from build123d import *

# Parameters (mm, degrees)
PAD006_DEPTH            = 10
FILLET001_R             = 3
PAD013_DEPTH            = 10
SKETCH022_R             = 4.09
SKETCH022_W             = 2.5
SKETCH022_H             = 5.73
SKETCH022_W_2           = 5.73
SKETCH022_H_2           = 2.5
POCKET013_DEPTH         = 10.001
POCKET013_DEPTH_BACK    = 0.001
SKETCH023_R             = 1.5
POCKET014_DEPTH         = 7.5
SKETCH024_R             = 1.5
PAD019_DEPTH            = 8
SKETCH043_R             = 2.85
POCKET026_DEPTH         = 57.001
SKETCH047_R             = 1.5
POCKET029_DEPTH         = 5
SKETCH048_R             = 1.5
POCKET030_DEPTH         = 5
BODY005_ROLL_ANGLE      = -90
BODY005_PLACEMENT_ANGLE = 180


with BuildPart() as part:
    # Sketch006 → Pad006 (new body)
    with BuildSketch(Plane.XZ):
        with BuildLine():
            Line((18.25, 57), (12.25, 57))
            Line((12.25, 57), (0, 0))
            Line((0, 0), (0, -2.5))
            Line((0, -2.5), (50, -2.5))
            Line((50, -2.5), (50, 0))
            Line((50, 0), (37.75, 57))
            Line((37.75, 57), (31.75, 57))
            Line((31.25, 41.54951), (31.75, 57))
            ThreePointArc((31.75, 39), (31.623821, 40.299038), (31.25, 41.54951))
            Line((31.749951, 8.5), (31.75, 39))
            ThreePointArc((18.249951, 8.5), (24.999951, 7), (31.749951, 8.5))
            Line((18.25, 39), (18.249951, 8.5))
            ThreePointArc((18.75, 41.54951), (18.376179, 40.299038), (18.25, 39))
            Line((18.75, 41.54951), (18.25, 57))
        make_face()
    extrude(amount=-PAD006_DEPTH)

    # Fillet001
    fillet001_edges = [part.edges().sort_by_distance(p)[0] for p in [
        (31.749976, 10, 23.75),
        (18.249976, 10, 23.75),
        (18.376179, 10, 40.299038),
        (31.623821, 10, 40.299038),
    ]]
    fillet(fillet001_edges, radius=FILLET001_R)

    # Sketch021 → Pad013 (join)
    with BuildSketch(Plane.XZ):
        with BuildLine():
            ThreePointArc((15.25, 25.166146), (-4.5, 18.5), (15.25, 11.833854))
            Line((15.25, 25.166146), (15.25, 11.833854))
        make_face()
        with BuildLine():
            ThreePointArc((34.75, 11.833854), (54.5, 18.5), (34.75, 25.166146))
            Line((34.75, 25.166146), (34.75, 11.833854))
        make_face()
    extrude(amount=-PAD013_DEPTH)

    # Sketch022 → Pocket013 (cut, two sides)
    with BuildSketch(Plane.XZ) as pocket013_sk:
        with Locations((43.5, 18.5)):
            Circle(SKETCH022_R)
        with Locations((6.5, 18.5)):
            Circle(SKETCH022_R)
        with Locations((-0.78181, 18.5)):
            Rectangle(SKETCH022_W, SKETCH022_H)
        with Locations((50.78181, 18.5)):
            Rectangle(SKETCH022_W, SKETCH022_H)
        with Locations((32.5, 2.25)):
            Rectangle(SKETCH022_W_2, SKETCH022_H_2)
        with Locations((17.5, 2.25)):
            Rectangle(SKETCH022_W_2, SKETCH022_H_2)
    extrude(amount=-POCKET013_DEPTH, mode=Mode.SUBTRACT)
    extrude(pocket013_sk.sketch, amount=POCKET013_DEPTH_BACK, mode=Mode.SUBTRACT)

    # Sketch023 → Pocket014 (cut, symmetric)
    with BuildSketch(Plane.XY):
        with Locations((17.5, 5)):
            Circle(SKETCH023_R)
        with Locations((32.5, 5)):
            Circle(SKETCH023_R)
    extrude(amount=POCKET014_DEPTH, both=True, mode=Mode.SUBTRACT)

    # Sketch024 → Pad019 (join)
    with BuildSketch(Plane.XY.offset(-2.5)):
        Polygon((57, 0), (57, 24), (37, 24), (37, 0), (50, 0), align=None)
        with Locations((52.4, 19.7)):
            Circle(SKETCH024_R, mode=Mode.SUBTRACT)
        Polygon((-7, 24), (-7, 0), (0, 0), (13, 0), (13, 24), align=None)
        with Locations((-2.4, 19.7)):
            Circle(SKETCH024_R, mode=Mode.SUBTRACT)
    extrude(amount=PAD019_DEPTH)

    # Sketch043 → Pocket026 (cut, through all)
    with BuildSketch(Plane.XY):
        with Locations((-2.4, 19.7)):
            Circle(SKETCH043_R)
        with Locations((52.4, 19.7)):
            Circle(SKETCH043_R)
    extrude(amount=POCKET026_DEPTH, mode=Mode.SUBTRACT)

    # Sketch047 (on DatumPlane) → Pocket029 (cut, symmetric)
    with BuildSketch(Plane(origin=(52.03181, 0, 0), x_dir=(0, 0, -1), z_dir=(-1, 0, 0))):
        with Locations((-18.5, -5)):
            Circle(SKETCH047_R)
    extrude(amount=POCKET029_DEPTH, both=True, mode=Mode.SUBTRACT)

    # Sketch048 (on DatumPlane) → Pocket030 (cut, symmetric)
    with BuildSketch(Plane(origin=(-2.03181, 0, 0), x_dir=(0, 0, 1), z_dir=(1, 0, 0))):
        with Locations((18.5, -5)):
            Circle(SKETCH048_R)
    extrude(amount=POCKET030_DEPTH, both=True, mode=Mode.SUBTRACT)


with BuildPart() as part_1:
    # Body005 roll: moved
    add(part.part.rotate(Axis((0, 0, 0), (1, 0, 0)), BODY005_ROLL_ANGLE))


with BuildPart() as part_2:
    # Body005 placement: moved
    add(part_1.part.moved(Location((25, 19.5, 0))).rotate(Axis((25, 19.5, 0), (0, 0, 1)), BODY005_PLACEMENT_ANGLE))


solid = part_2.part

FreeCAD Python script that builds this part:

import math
import FreeCAD as App
import Part
import Sketcher


def edges_at(feature, points):
    """Names of the edges that pass closest to the given points."""
    edges = feature.Shape.Edges
    near = lambda p: min(range(len(edges)), key=lambda i: edges[i].distToShape(Part.Vertex(*p))[0])
    return sorted({f"Edge{near(p) + 1}" for p in points})


def add_polygon(sketch, points):
    """Adds a closed chain of lines whose ends are joined by coincident constraints."""
    first, n = sketch.GeometryCount, len(points)
    for a, b in zip(points, points[1:] + points[:1]):
        sketch.addGeometry(Part.LineSegment(App.Vector(*a, 0), App.Vector(*b, 0)), False)
    for i in range(n):
        sketch.addConstraint(Sketcher.Constraint("Coincident", first + i, 2, first + (i + 1) % n, 1))

doc = App.newDocument("Part")
body = doc.addObject("PartDesign::Body", "Body")

# Sketch on XZ plane
sketch1 = body.newObject("Sketcher::SketchObject", "Sketch")
sketch1.AttachmentSupport = (doc.getObject("XZ_Plane"), [""])
sketch1.MapMode = "FlatFace"
sketch1.addGeometry([
    Part.LineSegment(App.Vector(18.25, 57, 0), App.Vector(12.25, 57, 0)),  # 0
    Part.LineSegment(App.Vector(12.25, 57, 0), App.Vector(0, 0, 0)),  # 1
    Part.LineSegment(App.Vector(0, 0, 0), App.Vector(0, -2.5, 0)),  # 2
    Part.LineSegment(App.Vector(0, -2.5, 0), App.Vector(50, -2.5, 0)),  # 3
    Part.LineSegment(App.Vector(50, -2.5, 0), App.Vector(50, 0, 0)),  # 4
    Part.LineSegment(App.Vector(50, 0, 0), App.Vector(37.75, 57, 0)),  # 5
    Part.LineSegment(App.Vector(37.75, 57, 0), App.Vector(31.75, 57, 0)),  # 6
    Part.LineSegment(App.Vector(31.75, 57, 0), App.Vector(31.25, 41.54951, 0)),  # 7
    Part.ArcOfCircle(Part.Circle(App.Vector(25.000015, 39.000003, 0), App.Vector(0, 0, 1), 6.749985), math.radians(-0.000026), math.radians(22.191631)),  # 8
    Part.LineSegment(App.Vector(31.75, 39, 0), App.Vector(31.749951, 8.5, 0)),  # 9
    Part.ArcOfCircle(Part.Circle(App.Vector(24.999951, 22.9375, 0), App.Vector(0, 0, 1), 15.9375), math.radians(-115.057615), math.radians(-64.942385)),  # 10
    Part.LineSegment(App.Vector(18.249951, 8.5, 0), App.Vector(18.25, 39, 0)),  # 11
    Part.ArcOfCircle(Part.Circle(App.Vector(24.999985, 39.000003, 0), App.Vector(0, 0, 1), 6.749985), math.radians(157.808369), math.radians(180.000026)),  # 12
    Part.LineSegment(App.Vector(18.75, 41.54951, 0), App.Vector(18.25, 57, 0)),  # 13
], False)
sketch1.addConstraint([
    Sketcher.Constraint("Coincident", 0, 2, 1, 1),
    Sketcher.Constraint("Coincident", 1, 2, 2, 1),
    Sketcher.Constraint("Coincident", 2, 2, 3, 1),
    Sketcher.Constraint("Coincident", 3, 2, 4, 1),
    Sketcher.Constraint("Coincident", 4, 2, 5, 1),
    Sketcher.Constraint("Coincident", 5, 2, 6, 1),
    Sketcher.Constraint("Coincident", 6, 2, 7, 1),
    Sketcher.Constraint("Coincident", 7, 2, 8, 2),
    Sketcher.Constraint("Tangent", 8, 1, 9, 1),
    Sketcher.Constraint("Coincident", 9, 2, 10, 2),
    Sketcher.Constraint("Coincident", 10, 1, 11, 1),
    Sketcher.Constraint("Coincident", 11, 2, 12, 2),
    Sketcher.Constraint("Coincident", 12, 1, 13, 1),
    Sketcher.Constraint("Coincident", 13, 2, 0, 1),
    Sketcher.Constraint("Horizontal", 0),
    Sketcher.Constraint("Vertical", 2),
    Sketcher.Constraint("Horizontal", 3),
    Sketcher.Constraint("Vertical", 4),
    Sketcher.Constraint("Horizontal", 6),
    Sketcher.Constraint("Coincident", 1, 2, -1, 1),
    Sketcher.Constraint("Equal", 8, 12),
    Sketcher.Constraint("PointOnObject", 4, 2, -1),
    Sketcher.Constraint("Parallel", 9, 11),
    Sketcher.Constraint("Horizontal", 8, 3, 12, 3),
    Sketcher.Constraint("Horizontal", 0, 2, 5, 2),
    Sketcher.Constraint("Horizontal", 9, 2, 10, 1),
    Sketcher.Constraint("Horizontal", 8, 1, 11, 2),
    Sketcher.Constraint("Horizontal", 7, 2, 12, 1),
    Sketcher.Constraint("Vertical", 6, 2, 8, 1),
    Sketcher.Constraint("Vertical", 11, 2, 13, 2),
    Sketcher.Constraint("Equal", 0, 6),
    Sketcher.Constraint("Equal", 1, 5),
    Sketcher.Constraint("DistanceX", 0, 2, 0, 1, 6.0),
    Sketcher.Constraint("DistanceX", 3, 1, 3, 2, 50.0),
    Sketcher.Constraint("DistanceY", 2, 2, 2, 1, 2.5),
    Sketcher.Constraint("DistanceY", -1, 1, 0, 2, 57.0),
    Sketcher.Constraint("DistanceY", -1, 1, 8, 1, 39.0),
    Sketcher.Constraint("DistanceY", 3, 2, 9, 2, 11.0),
    Sketcher.Constraint("DistanceX", 11, 2, 7, 2, 13.0),
    Sketcher.Constraint("Radius", 10, 15.9375),
    Sketcher.Constraint("DistanceX", 0, 2, 5, 2, 25.5),
    Sketcher.Constraint("Radius", 8, 6.749985),
    Sketcher.Constraint("Distance", 7, 15.458578),
])
pad1 = body.newObject("PartDesign::Pad", "Pad")
pad1.Profile = sketch1
pad1.Length = 10
pad1.Reversed = True
doc.recompute()

fillet = body.newObject("PartDesign::Fillet", "Fillet")
fillet.Base = (pad1, edges_at(pad1, [
    (31.75, 10, 23.75),
    (18.25, 10, 23.75),
    (18.376, 10, 40.299),
    (31.624, 10, 40.299),
]))
fillet.Radius = 3

# Sketch on XZ plane
sketch2 = body.newObject("Sketcher::SketchObject", "Sketch001")
sketch2.AttachmentSupport = (doc.getObject("XZ_Plane"), [""])
sketch2.MapMode = "FlatFace"
sketch2.addGeometry([
    Part.ArcOfCircle(Part.Circle(App.Vector(7, 18, 0), App.Vector(0, 0, 1), 11), math.radians(37), math.radians(323)),
    Part.LineSegment(App.Vector(15, 12, 0), App.Vector(15, 25, 0)),
    Part.ArcOfCircle(Part.Circle(App.Vector(43, 18, 0), App.Vector(0, 0, 1), 11), math.radians(-143), math.radians(143)),
    Part.LineSegment(App.Vector(35, 25, 0), App.Vector(35, 12, 0)),
], False)
sketch2.addConstraint([
    Sketcher.Constraint("Coincident", 0, 1, 1, 2),
    Sketcher.Constraint("Coincident", 1, 1, 0, 2),
    Sketcher.Constraint("Coincident", 2, 1, 3, 2),
    Sketcher.Constraint("Coincident", 3, 1, 2, 2),
    Sketcher.Constraint("Vertical", 1),
    Sketcher.Constraint("Vertical", 3),
    Sketcher.Constraint("Equal", 0, 2),
    Sketcher.Constraint("Horizontal", 0, 3, 2, 3),
    Sketcher.Constraint("Horizontal", 1, 1, 2, 1),
    Sketcher.Constraint("Radius", 0, 11.0),
    Sketcher.Constraint("DistanceX", 0, 3, 2, 3, 37.0),
    Sketcher.Constraint("DistanceX", -1, 1, 0, 3, 6.5),
    Sketcher.Constraint("DistanceY", -1, 1, 0, 3, 18.5),
    Sketcher.Constraint("DistanceX", 1, 1, 2, 1, 19.5),
])
pad2 = body.newObject("PartDesign::Pad", "Pad001")
pad2.Profile = sketch2
pad2.Length = 10
pad2.Reversed = True

# Sketch on XZ plane
sketch3 = body.newObject("Sketcher::SketchObject", "Sketch002")
sketch3.AttachmentSupport = (doc.getObject("XZ_Plane"), [""])
sketch3.MapMode = "FlatFace"
sketch3.addGeometry(Part.Circle(App.Vector(43.5, 18.5, 0), App.Vector(0, 0, 1), 4.1), False)  # 0
sketch3.addGeometry(Part.Circle(App.Vector(6.5, 18.5, 0), App.Vector(0, 0, 1), 4.1), False)  # 1
add_polygon(sketch3, [(-2, 21.4), (-2, 15.6), (0.5, 15.6), (0.5, 21.4)])  # lines 2-5
add_polygon(sketch3, [(49.5, 21.4), (49.5, 15.6), (52, 15.6), (52, 21.4)])  # lines 6-9
add_polygon(sketch3, [(29.6, 3.5), (29.6, 1), (35.4, 1), (35.4, 3.5)])  # lines 10-13
add_polygon(sketch3, [(14.6, 3.5), (14.6, 1), (20.4, 1), (20.4, 3.5)])  # lines 14-17
sketch3.addConstraint([
    Sketcher.Constraint("Vertical", 2),
    Sketcher.Constraint("Horizontal", 3),
    Sketcher.Constraint("Vertical", 4),
    Sketcher.Constraint("Horizontal", 5),
    Sketcher.Constraint("Vertical", 6),
    Sketcher.Constraint("Horizontal", 7),
    Sketcher.Constraint("Vertical", 8),
    Sketcher.Constraint("Horizontal", 9),
    Sketcher.Constraint("Vertical", 10),
    Sketcher.Constraint("Horizontal", 11),
    Sketcher.Constraint("Vertical", 12),
    Sketcher.Constraint("Horizontal", 13),
    Sketcher.Constraint("Vertical", 14),
    Sketcher.Constraint("Horizontal", 15),
    Sketcher.Constraint("Vertical", 16),
    Sketcher.Constraint("Horizontal", 17),
    Sketcher.Constraint("Equal", 0, 1),
    Sketcher.Constraint("Horizontal", 0, 3, 1, 3),
    Sketcher.Constraint("Horizontal", 3, 2, 6, 2),
    Sketcher.Constraint("Horizontal", 5, 2, 8, 2),
    Sketcher.Constraint("Horizontal", 11, 2, 14, 2),
    Sketcher.Constraint("Horizontal", 13, 2, 16, 2),
    Sketcher.Constraint("Equal", 5, 7),
    Sketcher.Constraint("Equal", 13, 15),
    Sketcher.Constraint("Equal", 17, 2),
    Sketcher.Constraint("Equal", 9, 10),
    Sketcher.Constraint("Diameter", 0, 8.18),
    Sketcher.Constraint("DistanceX", 3, 1, 3, 2, 2.5),
    Sketcher.Constraint("DistanceY", -1, 1, 10, 2, 1.0),
    Sketcher.Constraint("DistanceX", 1, 3, 0, 3, 37.0),
    Sketcher.Constraint("DistanceY", 12, 2, 0, 3, 15.0),
    Sketcher.Constraint("DistanceX", 14, 2, 10, 2, 15.0),
    Sketcher.Constraint("DistanceX", 11, 1, 11, 2, 5.73),
    Sketcher.Constraint("DistanceX", -1, 1, 0, 3, 43.5),
    Sketcher.Constraint("DistanceY", -1, 1, 2, 2, 15.635),
    Sketcher.Constraint("DistanceX", -1, 1, 10, 2, 29.635),
    Sketcher.Constraint("DistanceX", 2, 2, -1, 1, 2.03181),
    Sketcher.Constraint("DistanceX", -1, 1, 6, 2, 49.53181),
])
pocket1 = body.newObject("PartDesign::Pocket", "Pocket")
pocket1.Profile = sketch3
pocket1.Type = "ThroughAll"
pocket1.Midplane = True

# Sketch on XY plane
sketch4 = body.newObject("Sketcher::SketchObject", "Sketch003")
sketch4.AttachmentSupport = (doc.getObject("XY_Plane"), [""])
sketch4.MapMode = "FlatFace"
sketch4.addGeometry([
    Part.Circle(App.Vector(17.5, 5, 0), App.Vector(0, 0, 1), 1.5),
    Part.Circle(App.Vector(32.5, 5, 0), App.Vector(0, 0, 1), 1.5),
], False)
sketch4.addConstraint([
    Sketcher.Constraint("Equal", 0, 1),
    Sketcher.Constraint("Horizontal", 0, 3, 1, 3),
    Sketcher.Constraint("Diameter", 0, 3.0),
    Sketcher.Constraint("DistanceY", -1, 1, 0, 3, 5.0),
    Sketcher.Constraint("DistanceX", 0, 3, 1, 3, 15.0),
    Sketcher.Constraint("DistanceX", -1, 1, 0, 3, 17.5),
])
pocket2 = body.newObject("PartDesign::Pocket", "Pocket001")
pocket2.Profile = sketch4
pocket2.Length = 15
pocket2.Midplane = True

# Sketch on XY plane
sketch5 = body.newObject("Sketcher::SketchObject", "Sketch004")
sketch5.AttachmentSupport = (doc.getObject("XY_Plane"), [""])
sketch5.MapMode = "FlatFace"
sketch5.AttachmentOffset = App.Placement(App.Vector(0, 0, -2.5), App.Rotation())
add_polygon(sketch5, [(57, 0), (57, 24), (37, 24), (37, 0)])  # lines 0-3
sketch5.addGeometry(Part.Circle(App.Vector(52.4, 19.7, 0), App.Vector(0, 0, 1), 1.5), False)  # 4
add_polygon(sketch5, [(-7, 24), (-7, 0), (13, 0), (13, 24)])  # lines 5-8
sketch5.addGeometry(Part.Circle(App.Vector(-2.4, 19.7, 0), App.Vector(0, 0, 1), 1.5), False)  # 9
sketch5.addConstraint([
    Sketcher.Constraint("Vertical", 0),
    Sketcher.Constraint("Horizontal", 1),
    Sketcher.Constraint("Vertical", 2),
    Sketcher.Constraint("Horizontal", 3),
    Sketcher.Constraint("Vertical", 5),
    Sketcher.Constraint("Horizontal", 6),
    Sketcher.Constraint("Vertical", 7),
    Sketcher.Constraint("Horizontal", 8),
    Sketcher.Constraint("Equal", 4, 9),
    Sketcher.Constraint("PointOnObject", 2, 2, -1),
    Sketcher.Constraint("PointOnObject", 5, 2, -1),
    Sketcher.Constraint("Horizontal", 4, 3, 9, 3),
    Sketcher.Constraint("Horizontal", 1, 2, 7, 2),
    Sketcher.Constraint("Equal", 3, 6),
    Sketcher.Constraint("Diameter", 4, 3.0),
    Sketcher.Constraint("DistanceX", 1, 2, 1, 1, 20.0),
    Sketcher.Constraint("DistanceY", 0, 1, 0, 2, 24.0),
    Sketcher.Constraint("DistanceX", -1, 1, 0, 2, 57.0),
    Sketcher.Constraint("DistanceX", 5, 2, -1, 1, 7.0),
    Sketcher.Constraint("DistanceX", -1, 1, 4, 3, 52.4),
    Sketcher.Constraint("DistanceY", -1, 1, 4, 3, 19.7),
    Sketcher.Constraint("DistanceX", 9, 3, -1, 1, 2.4),
])
pad3 = body.newObject("PartDesign::Pad", "Pad002")
pad3.Profile = sketch5
pad3.Length = 8

# Sketch on XY plane
sketch6 = body.newObject("Sketcher::SketchObject", "Sketch005")
sketch6.AttachmentSupport = (doc.getObject("XY_Plane"), [""])
sketch6.MapMode = "FlatFace"
sketch6.addGeometry([
    Part.Circle(App.Vector(-2.4, 19.7, 0), App.Vector(0, 0, 1), 2.9),
    Part.Circle(App.Vector(52.4, 19.7, 0), App.Vector(0, 0, 1), 2.9),
], False)
sketch6.addConstraint([
    Sketcher.Constraint("Equal", 0, 1),
    Sketcher.Constraint("Horizontal", 0, 3, 1, 3),
    Sketcher.Constraint("Diameter", 0, 5.7),
    Sketcher.Constraint("DistanceX", 0, 3, -1, 1, 2.4),
    Sketcher.Constraint("DistanceY", -1, 1, 0, 3, 19.7),
    Sketcher.Constraint("DistanceX", -1, 1, 1, 3, 52.4),
])
pocket3 = body.newObject("PartDesign::Pocket", "Pocket002")
pocket3.Profile = sketch6
pocket3.Type = "ThroughAll"
pocket3.Reversed = True

# Sketch on YZ plane
sketch7 = body.newObject("Sketcher::SketchObject", "Sketch006")
sketch7.AttachmentSupport = (doc.getObject("YZ_Plane"), [""])
sketch7.MapMode = "FlatFace"
sketch7.AttachmentOffset = App.Placement(App.Vector(0, 0, 52.03181), App.Rotation())
sketch7.addGeometry(Part.Circle(App.Vector(5, 18.5, 0), App.Vector(0, 0, 1), 1.5), False)
sketch7.addConstraint([
    Sketcher.Constraint("Diameter", 0, 3.0),
    Sketcher.Constraint("DistanceX", -1, 1, 0, 3, 5.0),
    Sketcher.Constraint("DistanceY", -1, 1, 0, 3, 18.5),
])
pocket4 = body.newObject("PartDesign::Pocket", "Pocket003")
pocket4.Profile = sketch7
pocket4.Length = 10
pocket4.Midplane = True

# Sketch on YZ plane
sketch8 = body.newObject("Sketcher::SketchObject", "Sketch007")
sketch8.AttachmentSupport = (doc.getObject("YZ_Plane"), [""])
sketch8.MapMode = "FlatFace"
sketch8.AttachmentOffset = App.Placement(App.Vector(0, 0, -2.03181), App.Rotation())
sketch8.addGeometry(Part.Circle(App.Vector(5, 18.5, 0), App.Vector(0, 0, 1), 1.5), False)
sketch8.addConstraint([
    Sketcher.Constraint("Diameter", 0, 3.0),
    Sketcher.Constraint("DistanceX", -1, 1, 0, 3, 5.0),
    Sketcher.Constraint("DistanceY", -1, 1, 0, 3, 18.5),
])
pocket5 = body.newObject("PartDesign::Pocket", "Pocket004")
pocket5.Profile = sketch8
pocket5.Length = 10
pocket5.Midplane = True
body2 = doc.addObject("PartDesign::Body", "Body001")
doc.recompute()

body.Placement = App.Placement(App.Vector(0, 0, 0), App.Rotation(App.Vector(1, 0, 0), 270))
boolean = body2.newObject("PartDesign::Boolean", "Boolean")
boolean.Type = "Fuse"
boolean.addObjects([body])
body3 = doc.addObject("PartDesign::Body", "Body002")
doc.recompute()

body2.Placement = App.Placement(App.Vector(25, 19.5, 0), App.Rotation(App.Vector(0, 0, 1), 180))
boolean2 = body3.newObject("PartDesign::Boolean", "Boolean001")
boolean2.Type = "Fuse"
boolean2.addObjects([body2])

doc.recompute()
